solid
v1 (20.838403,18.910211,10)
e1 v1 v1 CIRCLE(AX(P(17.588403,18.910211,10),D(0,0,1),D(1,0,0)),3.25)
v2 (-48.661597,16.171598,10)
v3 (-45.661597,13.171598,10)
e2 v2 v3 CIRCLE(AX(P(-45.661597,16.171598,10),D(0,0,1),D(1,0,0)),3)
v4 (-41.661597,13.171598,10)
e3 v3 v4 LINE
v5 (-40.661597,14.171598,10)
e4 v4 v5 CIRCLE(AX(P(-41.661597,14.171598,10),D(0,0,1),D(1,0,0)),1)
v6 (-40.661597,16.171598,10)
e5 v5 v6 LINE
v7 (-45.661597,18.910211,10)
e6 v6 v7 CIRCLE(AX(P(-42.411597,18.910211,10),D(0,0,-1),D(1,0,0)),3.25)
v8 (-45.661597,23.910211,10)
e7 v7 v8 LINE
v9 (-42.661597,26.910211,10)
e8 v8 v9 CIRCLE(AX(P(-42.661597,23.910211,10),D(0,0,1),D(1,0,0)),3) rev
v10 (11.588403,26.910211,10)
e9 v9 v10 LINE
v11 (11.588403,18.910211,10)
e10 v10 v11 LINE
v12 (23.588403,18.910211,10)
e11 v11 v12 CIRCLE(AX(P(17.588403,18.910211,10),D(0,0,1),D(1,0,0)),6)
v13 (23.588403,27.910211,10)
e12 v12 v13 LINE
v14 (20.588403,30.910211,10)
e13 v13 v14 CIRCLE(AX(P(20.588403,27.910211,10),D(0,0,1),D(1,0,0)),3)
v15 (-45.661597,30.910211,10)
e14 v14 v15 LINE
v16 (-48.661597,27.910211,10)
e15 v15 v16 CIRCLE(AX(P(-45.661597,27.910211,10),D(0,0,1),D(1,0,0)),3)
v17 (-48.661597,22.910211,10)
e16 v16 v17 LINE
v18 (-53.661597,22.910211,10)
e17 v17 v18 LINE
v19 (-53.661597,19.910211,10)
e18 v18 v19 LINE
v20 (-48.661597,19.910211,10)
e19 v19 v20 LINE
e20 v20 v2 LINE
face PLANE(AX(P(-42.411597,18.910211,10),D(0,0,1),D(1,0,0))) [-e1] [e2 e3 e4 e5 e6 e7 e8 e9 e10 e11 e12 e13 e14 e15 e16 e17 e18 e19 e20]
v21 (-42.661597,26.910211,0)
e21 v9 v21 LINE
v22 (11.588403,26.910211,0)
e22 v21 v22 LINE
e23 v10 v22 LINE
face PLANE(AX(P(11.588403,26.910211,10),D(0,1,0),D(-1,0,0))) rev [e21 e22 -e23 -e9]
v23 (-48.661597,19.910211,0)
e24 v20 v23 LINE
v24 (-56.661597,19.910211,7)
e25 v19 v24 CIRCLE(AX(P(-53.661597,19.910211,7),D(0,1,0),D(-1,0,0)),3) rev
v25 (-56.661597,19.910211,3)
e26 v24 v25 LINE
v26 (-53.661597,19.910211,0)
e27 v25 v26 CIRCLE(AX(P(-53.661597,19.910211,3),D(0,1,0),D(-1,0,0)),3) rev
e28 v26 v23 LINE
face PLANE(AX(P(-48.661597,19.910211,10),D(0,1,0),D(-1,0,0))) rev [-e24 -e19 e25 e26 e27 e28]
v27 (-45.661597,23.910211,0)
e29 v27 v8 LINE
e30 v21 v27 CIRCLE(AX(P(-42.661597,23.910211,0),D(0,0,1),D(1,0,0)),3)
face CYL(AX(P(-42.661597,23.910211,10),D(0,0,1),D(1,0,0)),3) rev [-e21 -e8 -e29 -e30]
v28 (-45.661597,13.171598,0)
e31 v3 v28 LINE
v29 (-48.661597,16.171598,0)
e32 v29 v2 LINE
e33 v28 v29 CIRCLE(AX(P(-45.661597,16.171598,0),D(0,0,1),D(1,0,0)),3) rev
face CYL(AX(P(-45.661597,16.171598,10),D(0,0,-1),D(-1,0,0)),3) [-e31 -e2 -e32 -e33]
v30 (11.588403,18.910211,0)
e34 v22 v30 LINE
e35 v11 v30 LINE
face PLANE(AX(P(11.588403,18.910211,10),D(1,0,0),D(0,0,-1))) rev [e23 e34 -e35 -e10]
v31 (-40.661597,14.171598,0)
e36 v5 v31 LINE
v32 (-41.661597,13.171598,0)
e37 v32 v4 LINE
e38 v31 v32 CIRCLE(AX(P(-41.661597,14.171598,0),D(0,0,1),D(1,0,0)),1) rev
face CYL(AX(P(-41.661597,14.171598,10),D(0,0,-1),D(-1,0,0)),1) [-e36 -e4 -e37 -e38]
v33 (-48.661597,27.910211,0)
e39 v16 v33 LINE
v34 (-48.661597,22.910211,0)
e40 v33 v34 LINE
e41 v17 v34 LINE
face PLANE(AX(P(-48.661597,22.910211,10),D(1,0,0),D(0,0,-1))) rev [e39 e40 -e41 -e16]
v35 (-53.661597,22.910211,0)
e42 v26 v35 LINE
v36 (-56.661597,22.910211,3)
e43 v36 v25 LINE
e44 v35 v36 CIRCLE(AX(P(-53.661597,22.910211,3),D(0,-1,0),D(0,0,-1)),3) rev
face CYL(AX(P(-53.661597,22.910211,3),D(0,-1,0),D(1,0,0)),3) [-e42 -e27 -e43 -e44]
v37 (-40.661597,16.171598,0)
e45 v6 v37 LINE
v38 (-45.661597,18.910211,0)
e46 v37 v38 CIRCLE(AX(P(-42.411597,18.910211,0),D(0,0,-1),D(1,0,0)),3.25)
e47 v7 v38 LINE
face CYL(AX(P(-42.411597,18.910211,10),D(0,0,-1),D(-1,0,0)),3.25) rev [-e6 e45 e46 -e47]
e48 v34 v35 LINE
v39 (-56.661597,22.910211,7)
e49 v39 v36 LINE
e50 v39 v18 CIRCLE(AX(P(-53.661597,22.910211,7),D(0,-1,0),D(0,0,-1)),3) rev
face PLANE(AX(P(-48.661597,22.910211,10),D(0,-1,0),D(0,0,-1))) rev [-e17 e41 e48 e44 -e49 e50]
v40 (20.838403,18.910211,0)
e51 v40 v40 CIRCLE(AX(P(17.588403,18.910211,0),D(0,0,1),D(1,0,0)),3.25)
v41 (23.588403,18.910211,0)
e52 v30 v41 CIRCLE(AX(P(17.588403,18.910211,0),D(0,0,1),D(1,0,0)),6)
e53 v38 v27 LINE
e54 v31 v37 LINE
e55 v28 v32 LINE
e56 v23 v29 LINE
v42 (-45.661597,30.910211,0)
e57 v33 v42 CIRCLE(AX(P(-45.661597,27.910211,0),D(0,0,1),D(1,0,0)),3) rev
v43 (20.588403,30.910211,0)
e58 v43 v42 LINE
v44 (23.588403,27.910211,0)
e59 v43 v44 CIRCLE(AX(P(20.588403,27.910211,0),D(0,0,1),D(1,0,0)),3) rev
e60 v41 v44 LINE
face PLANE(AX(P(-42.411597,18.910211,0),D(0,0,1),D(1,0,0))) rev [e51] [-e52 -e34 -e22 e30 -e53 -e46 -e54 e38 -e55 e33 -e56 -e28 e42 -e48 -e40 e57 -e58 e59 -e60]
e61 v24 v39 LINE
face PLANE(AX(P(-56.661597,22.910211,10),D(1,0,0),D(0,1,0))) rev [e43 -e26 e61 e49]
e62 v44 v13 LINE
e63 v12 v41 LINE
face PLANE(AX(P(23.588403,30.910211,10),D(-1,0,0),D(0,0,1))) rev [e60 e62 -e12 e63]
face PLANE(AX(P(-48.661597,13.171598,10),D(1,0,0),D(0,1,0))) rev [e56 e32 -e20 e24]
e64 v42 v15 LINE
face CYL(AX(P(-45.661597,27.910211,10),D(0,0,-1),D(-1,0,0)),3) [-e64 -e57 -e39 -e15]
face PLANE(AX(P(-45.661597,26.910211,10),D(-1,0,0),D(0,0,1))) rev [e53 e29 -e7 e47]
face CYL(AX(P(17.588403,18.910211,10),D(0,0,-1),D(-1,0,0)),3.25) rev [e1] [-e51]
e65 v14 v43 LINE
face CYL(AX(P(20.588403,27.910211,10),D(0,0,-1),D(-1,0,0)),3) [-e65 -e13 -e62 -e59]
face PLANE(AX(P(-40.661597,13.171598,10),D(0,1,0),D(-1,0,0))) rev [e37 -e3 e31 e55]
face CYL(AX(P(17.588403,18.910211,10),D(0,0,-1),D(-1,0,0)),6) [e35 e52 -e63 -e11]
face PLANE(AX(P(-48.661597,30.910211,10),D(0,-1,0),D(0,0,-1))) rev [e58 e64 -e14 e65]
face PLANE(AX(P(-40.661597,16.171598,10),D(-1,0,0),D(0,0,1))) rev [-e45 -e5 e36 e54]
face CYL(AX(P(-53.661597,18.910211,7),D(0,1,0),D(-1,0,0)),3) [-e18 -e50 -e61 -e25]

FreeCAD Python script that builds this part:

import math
import FreeCAD as App
import Part
import Sketcher

V = App.Vector
Q = App.Units.Quantity


def edges_at(feature, points):
    """Names of the edges that pass closest to the given points."""
    edges = feature.Shape.Edges
    near = lambda p: min(range(len(edges)), key=lambda i: edges[i].distToShape(Part.Vertex(*p))[0])
    return sorted({f"Edge{near(p) + 1}" for p in points})

doc = App.newDocument("Part")
body = doc.addObject("PartDesign::Body", "Body")

sketch1 = body.newObject("Sketcher::SketchObject", "Sketch")
sketch1.AttachmentSupport = (doc.getObject("XY_Plane"), [""])
sketch1.MapMode = "FlatFace"
sketch1.addGeometry(Part.LineSegment(V(11.588403, 26.910211, 0), V(11.588403, 18.910211, 0)), False)
sketch1.addGeometry(Part.ArcOfCircle(Part.Circle(V(17.588403, 18.910211, 0), V(0, 0, 1), 6), math.radians(180), math.radians(360)), False)
sketch1.addGeometry(Part.LineSegment(V(23.588403, 18.910211, 0), V(23.588403, 30.910211, 0)), False)
sketch1.addGeometry(Part.LineSegment(V(23.588403, 30.910211, 0), V(-48.661597, 30.910211, 0)), False)
sketch1.addGeometry(Part.LineSegment(V(-48.661597, 30.910211, 0), V(-48.661597, 22.910211, 0)), False)
sketch1.addGeometry(Part.LineSegment(V(-48.661597, 22.910211, 0), V(-56.661597, 22.910211, 0)), False)
sketch1.addGeometry(Part.LineSegment(V(-56.661597, 22.910211, 0), V(-56.661597, 19.910211, 0)), False)
sketch1.addGeometry(Part.LineSegment(V(-56.661597, 19.910211, 0), V(-48.661597, 19.910211, 0)), False)
sketch1.addGeometry(Part.LineSegment(V(-48.661597, 19.910211, 0), V(-48.661597, 13.171598, 0)), False)
sketch1.addGeometry(Part.LineSegment(V(-48.661597, 13.171598, 0), V(-40.661597, 13.171598, 0)), False)
sketch1.addGeometry(Part.LineSegment(V(-40.661597, 13.171598, 0), V(-40.661597, 16.171598, 0)), False)
sketch1.addGeometry(Part.ArcOfCircle(Part.Circle(V(-42.411597, 18.910211, 0), V(0, 0, 1), 3.25), math.radians(180), math.radians(302.57897)), False)
sketch1.addGeometry(Part.LineSegment(V(-45.661597, 18.910211, 0), V(-45.661597, 26.910211, 0)), False)
sketch1.addGeometry(Part.LineSegment(V(-45.661597, 26.910211, 0), V(11.588403, 26.910211, 0)), False)
sketch1.addGeometry(Part.Circle(V(17.588403, 18.910211, 0), V(0, 0, 1), 3.25), False)
sketch1.addConstraint(Sketcher.Constraint("Tangent", 0, 2, 1, 1))
sketch1.addConstraint(Sketcher.Constraint("Tangent", 1, 2, 2, 1))
sketch1.addConstraint(Sketcher.Constraint("Coincident", 2, 2, 3, 1))
sketch1.addConstraint(Sketcher.Constraint("Coincident", 3, 2, 4, 1))
sketch1.addConstraint(Sketcher.Constraint("Coincident", 4, 2, 5, 1))
sketch1.addConstraint(Sketcher.Constraint("Coincident", 5, 2, 6, 1))
sketch1.addConstraint(Sketcher.Constraint("Coincident", 6, 2, 7, 1))
sketch1.addConstraint(Sketcher.Constraint("Coincident", 7, 2, 8, 1))
sketch1.addConstraint(Sketcher.Constraint("Coincident", 8, 2, 9, 1))
sketch1.addConstraint(Sketcher.Constraint("Coincident", 9, 2, 10, 1))
sketch1.addConstraint(Sketcher.Constraint("Coincident", 10, 2, 11, 2))
sketch1.addConstraint(Sketcher.Constraint("Tangent", 11, 1, 12, 1))
sketch1.addConstraint(Sketcher.Constraint("Coincident", 12, 2, 13, 1))
sketch1.addConstraint(Sketcher.Constraint("Coincident", 13, 2, 0, 1))
sketch1.addConstraint(Sketcher.Constraint("Vertical", 0))
sketch1.addConstraint(Sketcher.Constraint("Vertical", 2))
sketch1.addConstraint(Sketcher.Constraint("Horizontal", 3))
sketch1.addConstraint(Sketcher.Constraint("Vertical", 4))
sketch1.addConstraint(Sketcher.Constraint("Horizontal", 5))
sketch1.addConstraint(Sketcher.Constraint("Vertical", 6))
sketch1.addConstraint(Sketcher.Constraint("Horizontal", 7))
sketch1.addConstraint(Sketcher.Constraint("Vertical", 8))
sketch1.addConstraint(Sketcher.Constraint("Horizontal", 9))
sketch1.addConstraint(Sketcher.Constraint("Vertical", 10))
sketch1.addConstraint(Sketcher.Constraint("Vertical", 12))
sketch1.addConstraint(Sketcher.Constraint("Horizontal", 13))
sketch1.addConstraint(Sketcher.Constraint("Coincident", 14, 3, 1, 3))
sketch1.addConstraint(Sketcher.Constraint("Equal", 11, 14))
sketch1.addConstraint(Sketcher.Constraint("Horizontal", 1, 3, 11, 3))
sketch1.addConstraint(Sketcher.Constraint("Vertical", 4, 2, 7, 2))
sketch1.addConstraint(Sketcher.Constraint("Equal", 7, 9))
sketch1.addConstraint(Sketcher.Constraint("Equal", 9, 0))
sketch1.addConstraint(Sketcher.Constraint("Equal", 0, 4))
sketch1.addConstraint(Sketcher.Constraint("Equal", 6, 10))
sketch1.addConstraint(Sketcher.Constraint("Radius", 1, Q("6 mm")))
sketch1.addConstraint(Sketcher.Constraint("Diameter", 14, Q("6.5 mm")))
sketch1.addConstraint(Sketcher.Constraint("DistanceX", 5, 2, 5, 1, Q("8 mm")))
sketch1.addConstraint(Sketcher.Constraint("DistanceY", 2, 1, 2, 2, Q("12 mm")))
sketch1.addConstraint(Sketcher.Constraint("DistanceY", 6, 2, 6, 1, Q("3 mm")))
sketch1.addConstraint(Sketcher.Constraint("DistanceX", 11, 3, 1, 3, Q("60 mm")))
sketch1.addConstraint(Sketcher.Constraint("DistanceX", 7, 2, 11, 1, Q("3 mm")))
sketch1.addConstraint(Sketcher.Constraint("DistanceY", -1, 1, 8, 2, Q("13.171598 mm")))
sketch1.addConstraint(Sketcher.Constraint("DistanceX", -1, 1, 1, 3, Q("17.588403 mm")))
pad1 = body.newObject("PartDesign::Pad", "Pad")
pad1.Profile = sketch1
pad1.Length = 10
doc.recompute()

fillet = body.newObject("PartDesign::Fillet", "Fillet")
fillet.Base = (pad1, edges_at(pad1, [
    (-56.662, 21.41, 0),
    (-48.662, 30.91, 5),
    (23.588, 30.91, 5),
    (-45.662, 26.91, 5),
    (-48.662, 13.172, 5),
    (-56.662, 21.41, 10),
]))
fillet.Radius = 3
doc.recompute()

fillet2 = body.newObject("PartDesign::Fillet", "Fillet001")
fillet2.Base = (fillet, edges_at(fillet, [(-40.662, 13.172, 5)]))
fillet2.Radius = 1

doc.recompute()
